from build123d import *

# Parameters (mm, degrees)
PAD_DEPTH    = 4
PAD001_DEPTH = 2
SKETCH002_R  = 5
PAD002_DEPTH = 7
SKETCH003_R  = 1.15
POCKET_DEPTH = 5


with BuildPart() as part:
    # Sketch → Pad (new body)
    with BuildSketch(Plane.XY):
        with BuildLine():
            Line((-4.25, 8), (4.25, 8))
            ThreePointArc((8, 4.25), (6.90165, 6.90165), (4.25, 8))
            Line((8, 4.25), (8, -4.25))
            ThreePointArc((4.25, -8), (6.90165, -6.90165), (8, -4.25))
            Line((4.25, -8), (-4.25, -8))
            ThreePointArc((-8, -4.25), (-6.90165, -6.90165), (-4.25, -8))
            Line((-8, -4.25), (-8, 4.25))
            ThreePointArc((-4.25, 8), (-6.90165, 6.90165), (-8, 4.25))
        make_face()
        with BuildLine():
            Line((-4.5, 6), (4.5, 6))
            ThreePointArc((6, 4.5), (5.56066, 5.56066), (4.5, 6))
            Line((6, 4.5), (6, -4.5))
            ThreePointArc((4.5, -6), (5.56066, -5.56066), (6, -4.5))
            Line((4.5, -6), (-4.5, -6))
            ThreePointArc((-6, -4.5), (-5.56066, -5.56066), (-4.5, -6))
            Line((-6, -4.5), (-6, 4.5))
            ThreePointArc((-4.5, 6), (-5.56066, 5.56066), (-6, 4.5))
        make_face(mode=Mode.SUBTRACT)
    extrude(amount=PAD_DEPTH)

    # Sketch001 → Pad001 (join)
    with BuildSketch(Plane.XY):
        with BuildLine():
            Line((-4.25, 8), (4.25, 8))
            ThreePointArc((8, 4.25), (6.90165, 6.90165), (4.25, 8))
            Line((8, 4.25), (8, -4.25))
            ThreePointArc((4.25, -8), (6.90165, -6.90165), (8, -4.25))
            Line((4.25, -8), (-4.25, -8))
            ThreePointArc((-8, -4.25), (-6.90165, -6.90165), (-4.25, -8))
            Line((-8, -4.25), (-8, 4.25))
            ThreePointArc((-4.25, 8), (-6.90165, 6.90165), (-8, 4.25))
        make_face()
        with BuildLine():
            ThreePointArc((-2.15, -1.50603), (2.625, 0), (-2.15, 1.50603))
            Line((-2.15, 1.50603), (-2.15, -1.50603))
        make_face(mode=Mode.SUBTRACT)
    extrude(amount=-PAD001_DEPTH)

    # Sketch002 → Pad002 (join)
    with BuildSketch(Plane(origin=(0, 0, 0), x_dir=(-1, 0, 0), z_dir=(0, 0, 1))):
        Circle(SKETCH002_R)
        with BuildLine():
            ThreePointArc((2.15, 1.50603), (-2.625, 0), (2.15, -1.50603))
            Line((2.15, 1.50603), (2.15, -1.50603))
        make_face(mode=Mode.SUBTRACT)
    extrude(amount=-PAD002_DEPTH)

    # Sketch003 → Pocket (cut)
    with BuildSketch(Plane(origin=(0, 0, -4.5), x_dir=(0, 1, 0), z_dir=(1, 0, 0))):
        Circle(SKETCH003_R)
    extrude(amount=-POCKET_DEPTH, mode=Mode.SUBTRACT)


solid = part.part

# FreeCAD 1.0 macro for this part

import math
import FreeCAD as App
import Part
import Sketcher
from FreeCAD import Vector
Q = App.Units.Quantity

doc = App.newDocument("Part")
body = doc.addObject("PartDesign::Body", "Body")

sketch1 = body.newObject("Sketcher::SketchObject", "Sketch")
sketch1.AttachmentSupport = (doc.getObject("XY_Plane"), [""])
sketch1.MapMode = "FlatFace"
sketch1.addGeometry([
    Part.LineSegment(Vector(4.25, 8, 0), Vector(-4.25, 8, 0)),
    Part.ArcOfCircle(Part.Circle(Vector(-4.249999, 4.249999, 0), Vector(0, 0, 1), 3.750001), math.radians(90.000022), math.radians(179.999978)),
    Part.LineSegment(Vector(-8, 4.25, 0), Vector(-8, -4.25, 0)),
    Part.ArcOfCircle(Part.Circle(Vector(-4.249999, -4.249999, 0), Vector(0, 0, 1), 3.750001), math.radians(-179.999978), math.radians(-90.000022)),
    Part.LineSegment(Vector(-4.25, -8, 0), Vector(4.25, -8, 0)),
    Part.ArcOfCircle(Part.Circle(Vector(4.249999, -4.249999, 0), Vector(0, 0, 1), 3.750001), math.radians(-89.999978), math.radians(-0.000022)),
    Part.LineSegment(Vector(8, -4.25, 0), Vector(8, 4.25, 0)),
    Part.ArcOfCircle(Part.Circle(Vector(4.249999, 4.249999, 0), Vector(0, 0, 1), 3.750001), math.radians(0.000022), math.radians(89.999978)),
    Part.LineSegment(Vector(-4.5, 6, 0), Vector(4.5, 6, 0)),
    Part.ArcOfCircle(Part.Circle(Vector(4.499999, 4.499999, 0), Vector(0, 0, 1), 1.500001), math.radians(0.000022), math.radians(89.999978)),
    Part.LineSegment(Vector(6, 4.5, 0), Vector(6, -4.5, 0)),
    Part.ArcOfCircle(Part.Circle(Vector(4.499999, -4.499999, 0), Vector(0, 0, 1), 1.500001), math.radians(-89.999978), math.radians(-0.000022)),
    Part.LineSegment(Vector(4.5, -6, 0), Vector(-4.5, -6, 0)),
    Part.ArcOfCircle(Part.Circle(Vector(-4.499999, -4.499999, 0), Vector(0, 0, 1), 1.500001), math.radians(-179.999978), math.radians(-90.000022)),
    Part.LineSegment(Vector(-6, -4.5, 0), Vector(-6, 4.5, 0)),
    Part.ArcOfCircle(Part.Circle(Vector(-4.499999, 4.499999, 0), Vector(0, 0, 1), 1.500001), math.radians(90.000022), math.radians(179.999978)),
], False)
sketch1.addConstraint([
    Sketcher.Constraint("Tangent", 0, 2, 1, 1),
    Sketcher.Constraint("Tangent", 1, 2, 2, 1),
    Sketcher.Constraint("Tangent", 2, 2, 3, 1),
    Sketcher.Constraint("Tangent", 3, 2, 4, 1),
    Sketcher.Constraint("Tangent", 4, 2, 5, 1),
    Sketcher.Constraint("Tangent", 5, 2, 6, 1),
    Sketcher.Constraint("Tangent", 6, 2, 7, 1),
    Sketcher.Constraint("Tangent", 7, 2, 0, 1),
    Sketcher.Constraint("Tangent", 8, 2, 9, 2),
    Sketcher.Constraint("Tangent", 9, 1, 10, 1),
    Sketcher.Constraint("Tangent", 10, 2, 11, 2),
    Sketcher.Constraint("Tangent", 11, 1, 12, 1),
    Sketcher.Constraint("Tangent", 12, 2, 13, 2),
    Sketcher.Constraint("Tangent", 13, 1, 14, 1),
    Sketcher.Constraint("Tangent", 14, 2, 15, 2),
    Sketcher.Constraint("Tangent", 15, 1, 8, 1),
    Sketcher.Constraint("Horizontal", 0),
    Sketcher.Constraint("Vertical", 2),
    Sketcher.Constraint("Horizontal", 4),
    Sketcher.Constraint("Vertical", 6),
    Sketcher.Constraint("Horizontal", 8),
    Sketcher.Constraint("Vertical", 10),
    Sketcher.Constraint("Horizontal", 12),
    Sketcher.Constraint("Vertical", 14),
    Sketcher.Constraint("Equal", 1, 3),
    Sketcher.Constraint("Equal", 3, 5),
    Sketcher.Constraint("Equal", 5, 7),
    Sketcher.Constraint("Equal", 9, 11),
    Sketcher.Constraint("Equal", 11, 13),
    Sketcher.Constraint("Equal", 13, 15),
    Sketcher.Constraint("Symmetric", 1, 3, 5, 3, -1, 1),
    Sketcher.Constraint("Symmetric", 9, 3, 13, 3, -1, 1),
    Sketcher.Constraint("Equal", 4, 2),
    Sketcher.Constraint("Equal", 12, 10),
    Sketcher.Constraint("Radius", 9, Q("1.500001 mm")),
    Sketcher.Constraint("DistanceX", 8, 1, 8, 2, Q("9 mm")),
    Sketcher.Constraint("Radius", 1, Q("3.750001 mm")),
    Sketcher.Constraint("DistanceX", 0, 2, 0, 1, Q("8.5 mm")),
])
pad1 = body.newObject("PartDesign::Pad", "Pad")
pad1.Profile = sketch1
pad1.Length = 4

sketch2 = body.newObject("Sketcher::SketchObject", "Sketch001")
sketch2.AttachmentSupport = (doc.getObject("XY_Plane"), [""])
sketch2.MapMode = "FlatFace"
sketch2.addGeometry([
    Part.LineSegment(Vector(4.25, 8, 0), Vector(-4.25, 8, 0)),
    Part.ArcOfCircle(Part.Circle(Vector(-4.249999, 4.249999, 0), Vector(0, 0, 1), 3.750001), math.radians(90.000022), math.radians(179.999978)),
    Part.LineSegment(Vector(-8, 4.25, 0), Vector(-8, -4.25, 0)),
    Part.ArcOfCircle(Part.Circle(Vector(-4.249999, -4.249999, 0), Vector(0, 0, 1), 3.750001), math.radians(-179.999978), math.radians(-90.000022)),
    Part.LineSegment(Vector(-4.25, -8, 0), Vector(4.25, -8, 0)),
    Part.ArcOfCircle(Part.Circle(Vector(4.249999, -4.249999, 0), Vector(0, 0, 1), 3.750001), math.radians(-89.999978), math.radians(-0.000022)),
    Part.LineSegment(Vector(8, -4.25, 0), Vector(8, 4.25, 0)),
    Part.ArcOfCircle(Part.Circle(Vector(4.249999, 4.249999, 0), Vector(0, 0, 1), 3.750001), math.radians(0.000022), math.radians(89.999978)),
    Part.LineSegment(Vector(-2.15, -1.50603, 0), Vector(-2.15, 1.50603, 0)),
    Part.ArcOfCircle(Part.Circle(Vector(0, 0, 0), Vector(0, 0, 1), 2.625), math.radians(-144.98956), math.radians(144.98956)),
], False)
sketch2.addConstraint([
    Sketcher.Constraint("Tangent", 0, 2, 1, 1),
    Sketcher.Constraint("Tangent", 1, 2, 2, 1),
    Sketcher.Constraint("Tangent", 2, 2, 3, 1),
    Sketcher.Constraint("Tangent", 3, 2, 4, 1),
    Sketcher.Constraint("Tangent", 4, 2, 5, 1),
    Sketcher.Constraint("Tangent", 5, 2, 6, 1),
    Sketcher.Constraint("Tangent", 6, 2, 7, 1),
    Sketcher.Constraint("Tangent", 7, 2, 0, 1),
    Sketcher.Constraint("Coincident", 8, 1, 9, 1),
    Sketcher.Constraint("Coincident", 9, 2, 8, 2),
    Sketcher.Constraint("Horizontal", 0),
    Sketcher.Constraint("Vertical", 2),
    Sketcher.Constraint("Horizontal", 4),
    Sketcher.Constraint("Vertical", 6),
    Sketcher.Constraint("Vertical", 8),
    Sketcher.Constraint("Coincident", 9, 3, -1, 1),
    Sketcher.Constraint("Equal", 1, 3),
    Sketcher.Constraint("Equal", 3, 5),
    Sketcher.Constraint("Equal", 5, 7),
    Sketcher.Constraint("Symmetric", 1, 3, 5, 3, -1, 1),
    Sketcher.Constraint("Equal", 4, 2),
    Sketcher.Constraint("Radius", 1, Q("3.750001 mm")),
    Sketcher.Constraint("DistanceX", 0, 2, 0, 1, Q("8.5 mm")),
    Sketcher.Constraint("Radius", 9, Q("2.625 mm")),
    Sketcher.Constraint("DistanceX", 3, 3, 8, 1, Q("2.099999 mm")),
])
pad2 = body.newObject("PartDesign::Pad", "Pad001")
pad2.Profile = sketch2
pad2.Length = 2
pad2.Reversed = True

sketch3 = body.newObject("Sketcher::SketchObject", "Sketch002")
sketch3.AttachmentSupport = (doc.getObject("XY_Plane"), [""])
sketch3.MapMode = "FlatFace"
sketch3.addGeometry([
    Part.Circle(Vector(0, 0, 0), Vector(0, 0, 1), 5),
    Part.ArcOfCircle(Part.Circle(Vector(0, 0, 0), Vector(0, 0, 1), 2.625), math.radians(-144.98956), math.radians(144.98956)),
    Part.LineSegment(Vector(-2.15, -1.50603, 0), Vector(-2.15, 1.50603, 0)),
], False)
sketch3.addConstraint([
    Sketcher.Constraint("Coincident", 1, 1, 2, 1),
    Sketcher.Constraint("Coincident", 2, 2, 1, 2),
    Sketcher.Constraint("Vertical", 2),
    Sketcher.Constraint("Coincident", 0, 3, -1, 1),
    Sketcher.Constraint("Coincident", 1, 3, -1, 1),
    Sketcher.Constraint("Diameter", 0, Q("10 mm")),
    Sketcher.Constraint("Radius", 1, Q("2.625 mm")),
    Sketcher.Constraint("DistanceX", 1, 1, -1, 1, Q("2.15 mm")),
])
pad3 = body.newObject("PartDesign::Pad", "Pad002")
pad3.Profile = sketch3
pad3.Length = 7
pad3.Reversed = True

sketch4 = body.newObject("Sketcher::SketchObject", "Sketch003")
sketch4.AttachmentSupport = (doc.getObject("YZ_Plane"), [""])
sketch4.MapMode = "FlatFace"
sketch4.addGeometry(Part.Circle(Vector(0, -4.5, 0), Vector(0, 0, 1), 1.15), False)
sketch4.addConstraint([
    Sketcher.Constraint("PointOnObject", 0, 3, -2),
    Sketcher.Constraint("Diameter", 0, Q("2.3 mm")),
    Sketcher.Constraint("DistanceY", 0, 3, -1, 1, Q("4.5 mm")),
])
pocket1 = body.newObject("PartDesign::Pocket", "Pocket")
pocket1.Profile = sketch4
pocket1.Length = 5

doc.recompute()
